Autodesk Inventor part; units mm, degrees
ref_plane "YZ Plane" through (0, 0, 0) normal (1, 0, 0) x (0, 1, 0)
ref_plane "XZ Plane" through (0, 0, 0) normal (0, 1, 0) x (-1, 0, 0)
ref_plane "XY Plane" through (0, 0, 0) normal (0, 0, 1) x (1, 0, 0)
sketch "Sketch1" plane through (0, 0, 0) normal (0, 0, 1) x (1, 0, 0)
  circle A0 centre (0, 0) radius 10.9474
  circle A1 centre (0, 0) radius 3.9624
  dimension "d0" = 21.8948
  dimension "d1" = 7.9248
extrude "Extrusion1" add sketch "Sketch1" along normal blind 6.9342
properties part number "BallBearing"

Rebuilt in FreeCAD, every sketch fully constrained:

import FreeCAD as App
import Part
import Sketcher
from FreeCAD import Vector
Q = App.Units.Quantity

doc = App.newDocument("Part")
body = doc.addObject("PartDesign::Body", "Body")

# Sketch on XY plane
sketch1 = doc.addObject("Sketcher::SketchObject", "Sketch")
body.addObject(sketch1)
sketch1.AttachmentSupport = (doc.XY_Plane, [""])
sketch1.MapMode = "FlatFace"
sketch1.addGeometry(Part.Circle(Vector(0, 0, 0), Vector(0, 0, 1), 10.9474), False)
sketch1.addGeometry(Part.Circle(Vector(0, 0, 0), Vector(0, 0, 1), 3.9624), False)
sketch1.addConstraint(Sketcher.Constraint("Coincident", 0, 3, -1, 1))
sketch1.addConstraint(Sketcher.Constraint("Coincident", 1, 3, -1, 1))
sketch1.addConstraint(Sketcher.Constraint("Diameter", 0, Q("0.862 in")))
sketch1.addConstraint(Sketcher.Constraint("Diameter", 1, Q("0.312 in")))
pad1 = doc.addObject("PartDesign::Pad", "Pad")
body.addObject(pad1)
pad1.Profile = sketch1
pad1.Length = Q("0.273 in")

doc.recompute()
